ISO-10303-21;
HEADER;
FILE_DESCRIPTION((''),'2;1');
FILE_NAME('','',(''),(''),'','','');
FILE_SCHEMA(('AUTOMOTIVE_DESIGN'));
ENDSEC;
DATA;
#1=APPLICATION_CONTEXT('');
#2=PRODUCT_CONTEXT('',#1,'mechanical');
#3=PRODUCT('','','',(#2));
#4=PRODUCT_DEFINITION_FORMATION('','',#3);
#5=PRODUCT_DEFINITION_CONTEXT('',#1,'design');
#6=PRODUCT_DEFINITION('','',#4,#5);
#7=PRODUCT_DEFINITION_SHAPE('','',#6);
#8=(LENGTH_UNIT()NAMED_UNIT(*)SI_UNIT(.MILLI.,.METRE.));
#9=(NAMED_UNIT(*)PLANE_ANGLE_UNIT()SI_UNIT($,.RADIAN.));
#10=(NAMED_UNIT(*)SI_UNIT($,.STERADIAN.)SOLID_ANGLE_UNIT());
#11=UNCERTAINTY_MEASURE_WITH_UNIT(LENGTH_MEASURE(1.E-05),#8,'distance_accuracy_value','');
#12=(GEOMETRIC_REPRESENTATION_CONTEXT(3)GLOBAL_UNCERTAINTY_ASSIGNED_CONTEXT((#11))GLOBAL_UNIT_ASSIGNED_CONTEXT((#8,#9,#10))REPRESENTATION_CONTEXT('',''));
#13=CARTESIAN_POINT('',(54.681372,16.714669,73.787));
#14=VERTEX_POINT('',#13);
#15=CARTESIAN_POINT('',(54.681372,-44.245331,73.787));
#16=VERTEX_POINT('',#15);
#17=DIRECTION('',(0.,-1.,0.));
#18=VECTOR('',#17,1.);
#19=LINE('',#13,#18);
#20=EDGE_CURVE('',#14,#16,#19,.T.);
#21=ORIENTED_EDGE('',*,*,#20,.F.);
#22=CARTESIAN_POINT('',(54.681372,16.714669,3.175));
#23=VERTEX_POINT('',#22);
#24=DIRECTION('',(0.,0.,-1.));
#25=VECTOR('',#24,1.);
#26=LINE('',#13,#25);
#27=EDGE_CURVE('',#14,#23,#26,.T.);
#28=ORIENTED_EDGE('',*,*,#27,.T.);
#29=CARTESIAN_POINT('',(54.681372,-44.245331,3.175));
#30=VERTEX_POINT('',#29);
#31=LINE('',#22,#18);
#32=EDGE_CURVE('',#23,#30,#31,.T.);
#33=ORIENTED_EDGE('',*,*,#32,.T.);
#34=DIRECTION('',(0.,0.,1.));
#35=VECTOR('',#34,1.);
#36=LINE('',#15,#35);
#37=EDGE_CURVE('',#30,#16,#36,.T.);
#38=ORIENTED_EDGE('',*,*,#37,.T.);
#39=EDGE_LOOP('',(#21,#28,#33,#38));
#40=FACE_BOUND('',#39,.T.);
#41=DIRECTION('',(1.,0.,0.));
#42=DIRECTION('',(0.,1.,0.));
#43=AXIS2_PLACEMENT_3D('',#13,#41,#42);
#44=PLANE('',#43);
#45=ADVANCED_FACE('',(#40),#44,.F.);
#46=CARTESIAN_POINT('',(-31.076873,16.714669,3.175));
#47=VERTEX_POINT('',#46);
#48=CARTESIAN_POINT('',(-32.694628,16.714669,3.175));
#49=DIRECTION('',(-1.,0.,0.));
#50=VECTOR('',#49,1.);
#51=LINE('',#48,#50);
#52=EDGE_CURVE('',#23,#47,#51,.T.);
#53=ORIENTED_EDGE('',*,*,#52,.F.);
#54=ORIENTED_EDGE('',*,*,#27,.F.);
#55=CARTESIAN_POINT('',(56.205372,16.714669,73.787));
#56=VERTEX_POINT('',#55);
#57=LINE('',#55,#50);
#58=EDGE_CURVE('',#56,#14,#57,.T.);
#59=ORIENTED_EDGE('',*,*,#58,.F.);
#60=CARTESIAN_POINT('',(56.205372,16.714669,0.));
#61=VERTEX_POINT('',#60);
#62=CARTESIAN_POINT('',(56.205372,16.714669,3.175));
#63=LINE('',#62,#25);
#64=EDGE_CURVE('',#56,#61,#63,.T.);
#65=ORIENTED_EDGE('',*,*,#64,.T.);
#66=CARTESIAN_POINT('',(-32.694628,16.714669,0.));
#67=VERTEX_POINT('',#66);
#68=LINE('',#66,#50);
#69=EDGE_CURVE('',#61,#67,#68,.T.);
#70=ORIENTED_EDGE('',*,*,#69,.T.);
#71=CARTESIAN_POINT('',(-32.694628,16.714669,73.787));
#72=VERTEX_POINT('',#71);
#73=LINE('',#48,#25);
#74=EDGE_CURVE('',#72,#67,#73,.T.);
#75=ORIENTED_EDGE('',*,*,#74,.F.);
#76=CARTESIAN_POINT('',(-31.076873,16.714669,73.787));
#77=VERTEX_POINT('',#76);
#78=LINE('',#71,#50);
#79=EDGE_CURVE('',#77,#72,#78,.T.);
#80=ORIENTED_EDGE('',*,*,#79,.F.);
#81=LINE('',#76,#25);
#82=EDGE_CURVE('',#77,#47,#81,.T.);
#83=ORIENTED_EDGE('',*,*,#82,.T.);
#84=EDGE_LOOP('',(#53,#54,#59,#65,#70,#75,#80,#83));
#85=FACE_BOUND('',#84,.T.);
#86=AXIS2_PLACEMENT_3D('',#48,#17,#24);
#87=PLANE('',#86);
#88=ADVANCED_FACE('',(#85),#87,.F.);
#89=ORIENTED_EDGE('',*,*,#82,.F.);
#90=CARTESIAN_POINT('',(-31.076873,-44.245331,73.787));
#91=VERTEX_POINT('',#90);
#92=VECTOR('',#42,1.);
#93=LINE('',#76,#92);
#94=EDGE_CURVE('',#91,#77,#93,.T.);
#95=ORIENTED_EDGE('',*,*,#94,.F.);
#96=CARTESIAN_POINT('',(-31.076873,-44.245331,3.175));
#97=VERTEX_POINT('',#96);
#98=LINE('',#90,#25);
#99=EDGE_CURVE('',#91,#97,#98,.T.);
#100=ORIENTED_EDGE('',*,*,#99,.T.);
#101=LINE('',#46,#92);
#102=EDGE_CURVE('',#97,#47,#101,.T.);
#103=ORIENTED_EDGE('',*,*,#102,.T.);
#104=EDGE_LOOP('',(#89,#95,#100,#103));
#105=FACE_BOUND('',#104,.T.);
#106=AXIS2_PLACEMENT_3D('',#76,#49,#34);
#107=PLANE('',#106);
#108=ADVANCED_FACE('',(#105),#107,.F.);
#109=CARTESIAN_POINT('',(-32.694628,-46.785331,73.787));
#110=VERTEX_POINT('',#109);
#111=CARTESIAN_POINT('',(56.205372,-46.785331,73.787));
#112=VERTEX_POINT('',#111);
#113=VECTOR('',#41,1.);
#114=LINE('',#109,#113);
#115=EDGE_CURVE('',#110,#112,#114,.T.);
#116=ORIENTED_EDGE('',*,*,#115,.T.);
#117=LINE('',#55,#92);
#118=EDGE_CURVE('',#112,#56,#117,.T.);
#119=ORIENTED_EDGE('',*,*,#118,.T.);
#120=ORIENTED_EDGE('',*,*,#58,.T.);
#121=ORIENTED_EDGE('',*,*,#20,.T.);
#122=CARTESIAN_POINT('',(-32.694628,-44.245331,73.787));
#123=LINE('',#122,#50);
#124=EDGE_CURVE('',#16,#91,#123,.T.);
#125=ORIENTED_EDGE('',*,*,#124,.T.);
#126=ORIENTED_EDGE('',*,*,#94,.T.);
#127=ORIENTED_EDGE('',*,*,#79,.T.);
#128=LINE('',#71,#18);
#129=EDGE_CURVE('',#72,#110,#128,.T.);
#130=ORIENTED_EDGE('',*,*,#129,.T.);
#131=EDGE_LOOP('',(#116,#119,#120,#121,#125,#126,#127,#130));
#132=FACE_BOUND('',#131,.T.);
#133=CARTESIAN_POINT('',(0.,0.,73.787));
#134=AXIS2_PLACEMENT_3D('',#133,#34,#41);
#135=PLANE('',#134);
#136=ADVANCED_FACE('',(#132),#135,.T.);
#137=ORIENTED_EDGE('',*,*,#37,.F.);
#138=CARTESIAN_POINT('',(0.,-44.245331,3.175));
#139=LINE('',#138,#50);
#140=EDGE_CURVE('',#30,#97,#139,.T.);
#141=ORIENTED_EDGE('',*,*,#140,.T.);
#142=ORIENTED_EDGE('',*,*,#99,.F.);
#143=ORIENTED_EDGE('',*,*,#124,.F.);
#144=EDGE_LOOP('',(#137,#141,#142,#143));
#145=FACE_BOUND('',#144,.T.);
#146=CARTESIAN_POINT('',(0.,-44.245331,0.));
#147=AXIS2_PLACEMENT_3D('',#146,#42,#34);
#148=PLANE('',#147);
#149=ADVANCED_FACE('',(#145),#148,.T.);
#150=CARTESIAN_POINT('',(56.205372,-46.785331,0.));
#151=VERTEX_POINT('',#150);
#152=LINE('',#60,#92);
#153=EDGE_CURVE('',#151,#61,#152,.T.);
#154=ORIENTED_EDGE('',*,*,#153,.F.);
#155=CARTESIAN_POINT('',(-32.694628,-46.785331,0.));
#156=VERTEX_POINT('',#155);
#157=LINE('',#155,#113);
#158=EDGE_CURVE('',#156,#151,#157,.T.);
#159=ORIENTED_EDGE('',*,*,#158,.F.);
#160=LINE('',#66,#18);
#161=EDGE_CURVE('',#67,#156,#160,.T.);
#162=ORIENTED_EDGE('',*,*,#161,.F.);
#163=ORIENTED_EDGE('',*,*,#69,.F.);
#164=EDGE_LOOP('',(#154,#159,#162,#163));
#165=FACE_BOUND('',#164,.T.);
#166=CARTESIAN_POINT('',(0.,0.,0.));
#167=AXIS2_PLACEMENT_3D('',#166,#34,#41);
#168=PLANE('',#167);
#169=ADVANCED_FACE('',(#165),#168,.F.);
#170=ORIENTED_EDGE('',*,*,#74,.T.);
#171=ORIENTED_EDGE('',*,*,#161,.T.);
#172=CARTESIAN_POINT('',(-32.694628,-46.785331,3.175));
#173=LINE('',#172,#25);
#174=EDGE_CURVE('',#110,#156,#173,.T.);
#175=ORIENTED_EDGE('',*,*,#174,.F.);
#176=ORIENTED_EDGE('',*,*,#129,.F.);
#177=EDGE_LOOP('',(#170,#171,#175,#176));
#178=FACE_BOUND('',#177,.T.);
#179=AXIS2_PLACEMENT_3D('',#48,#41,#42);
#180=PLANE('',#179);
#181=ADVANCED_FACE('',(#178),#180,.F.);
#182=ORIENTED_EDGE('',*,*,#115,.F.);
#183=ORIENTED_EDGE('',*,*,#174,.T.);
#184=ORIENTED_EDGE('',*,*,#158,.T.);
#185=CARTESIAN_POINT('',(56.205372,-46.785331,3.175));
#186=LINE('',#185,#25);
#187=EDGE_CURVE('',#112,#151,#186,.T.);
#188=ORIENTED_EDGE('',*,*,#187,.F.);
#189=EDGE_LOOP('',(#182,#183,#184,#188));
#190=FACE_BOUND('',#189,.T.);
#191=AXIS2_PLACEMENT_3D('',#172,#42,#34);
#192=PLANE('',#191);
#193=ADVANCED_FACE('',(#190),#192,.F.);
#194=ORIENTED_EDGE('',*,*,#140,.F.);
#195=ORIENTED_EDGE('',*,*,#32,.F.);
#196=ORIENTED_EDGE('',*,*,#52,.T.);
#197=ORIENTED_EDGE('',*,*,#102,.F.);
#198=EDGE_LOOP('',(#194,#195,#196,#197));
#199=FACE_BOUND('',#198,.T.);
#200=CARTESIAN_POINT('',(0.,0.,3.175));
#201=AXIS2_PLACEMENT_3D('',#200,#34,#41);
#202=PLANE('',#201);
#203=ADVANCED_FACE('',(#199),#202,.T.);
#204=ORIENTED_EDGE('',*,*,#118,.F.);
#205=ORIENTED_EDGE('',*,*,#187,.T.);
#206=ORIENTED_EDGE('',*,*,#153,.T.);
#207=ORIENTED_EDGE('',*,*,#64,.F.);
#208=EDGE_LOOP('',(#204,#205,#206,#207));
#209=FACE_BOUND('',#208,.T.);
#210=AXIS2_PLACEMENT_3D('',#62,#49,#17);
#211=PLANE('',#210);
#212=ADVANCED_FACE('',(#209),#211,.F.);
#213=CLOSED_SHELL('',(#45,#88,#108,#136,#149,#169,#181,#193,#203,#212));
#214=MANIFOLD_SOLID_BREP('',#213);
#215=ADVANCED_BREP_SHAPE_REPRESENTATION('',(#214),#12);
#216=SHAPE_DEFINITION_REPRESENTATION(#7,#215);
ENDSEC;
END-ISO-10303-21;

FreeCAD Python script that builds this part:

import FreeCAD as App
import Part
import Sketcher
Q = App.Units.Quantity

doc = App.newDocument("Part")
body = doc.addObject("PartDesign::Body", "Body")

# Sketch on XY plane
sketch1 = doc.addObject("Sketcher::SketchObject", "Sketch")
body.addObject(sketch1)
sketch1.AttachmentSupport = (doc.XY_Plane, [""])
sketch1.MapMode = "FlatFace"
sketch1.addGeometry([
    Part.LineSegment(App.Vector(-32.694628, 16.714669, 0), App.Vector(-32.694628, -46.785331, 0)),
    Part.LineSegment(App.Vector(-32.694628, -46.785331, 0), App.Vector(56.205372, -46.785331, 0)),
    Part.LineSegment(App.Vector(56.205372, -46.785331, 0), App.Vector(56.205372, 16.714669, 0)),
    Part.LineSegment(App.Vector(56.205372, 16.714669, 0), App.Vector(-32.694628, 16.714669, 0)),
], False)
sketch1.addConstraint([
    Sketcher.Constraint("Coincident", 0, 2, 1, 1),
    Sketcher.Constraint("Coincident", 1, 2, 2, 1),
    Sketcher.Constraint("Coincident", 2, 2, 3, 1),
    Sketcher.Constraint("Coincident", 3, 2, 0, 1),
    Sketcher.Constraint("Vertical", 0),
    Sketcher.Constraint("Horizontal", 1),
    Sketcher.Constraint("Vertical", 2),
    Sketcher.Constraint("Horizontal", 3),
    Sketcher.Constraint("DistanceX", 1, 1, 1, 2, Q("3.5 in")),
    Sketcher.Constraint("DistanceY", 0, 2, 0, 1, Q("2.5 in")),
    Sketcher.Constraint("DistanceX", 0, 2, -1, 1, 32.694628),
    Sketcher.Constraint("DistanceY", 0, 2, -1, 1, 46.785331),
])
pad1 = doc.addObject("PartDesign::Pad", "Pad")
body.addObject(pad1)
pad1.Profile = sketch1
pad1.Length = Q("0.125 in")

# Sketch on XY plane
sketch2 = doc.addObject("Sketcher::SketchObject", "Sketch001")
body.addObject(sketch2)
sketch2.AttachmentSupport = (doc.XY_Plane, [""])
sketch2.MapMode = "FlatFace"
sketch2.AttachmentOffset = App.Placement(App.Vector(0, 0, 0.125 * 25.4), App.Rotation())
sketch2.addGeometry([
    Part.LineSegment(App.Vector(-32.694628, 16.714669, 0), App.Vector(-32.694628, -46.785331, 0)),
    Part.LineSegment(App.Vector(-32.694628, -46.785331, 0), App.Vector(-31.076873, -46.785331, 0)),
    Part.LineSegment(App.Vector(-31.076873, -46.785331, 0), App.Vector(-31.076873, 16.714669, 0)),
    Part.LineSegment(App.Vector(-31.076873, 16.714669, 0), App.Vector(-32.694628, 16.714669, 0)),
], False)
sketch2.addConstraint([
    Sketcher.Constraint("Coincident", 0, 2, 1, 1),
    Sketcher.Constraint("Coincident", 1, 2, 2, 1),
    Sketcher.Constraint("Coincident", 2, 2, 3, 1),
    Sketcher.Constraint("Coincident", 3, 2, 0, 1),
    Sketcher.Constraint("Vertical", 0),
    Sketcher.Constraint("Horizontal", 1),
    Sketcher.Constraint("Vertical", 2),
    Sketcher.Constraint("Horizontal", 3),
    Sketcher.Constraint("DistanceY", 0, 2, 0, 1, Q("2.5 in")),
    Sketcher.Constraint("DistanceX", 1, 1, 1, 2, 1.617755),
    Sketcher.Constraint("DistanceX", 0, 2, -1, 1, 32.694628),
    Sketcher.Constraint("DistanceY", 0, 2, -1, 1, 46.785331),
])
pad2 = doc.addObject("PartDesign::Pad", "Pad001")
body.addObject(pad2)
pad2.Profile = sketch2
pad2.Length = Q("2.78 in")

# Sketch on XY plane
sketch3 = doc.addObject("Sketcher::SketchObject", "Sketch002")
body.addObject(sketch3)
sketch3.AttachmentSupport = (doc.XY_Plane, [""])
sketch3.MapMode = "FlatFace"
sketch3.AttachmentOffset = App.Placement(App.Vector(0, 0, 0.125 * 25.4), App.Rotation())
sketch3.addGeometry([
    Part.LineSegment(App.Vector(54.681372, 16.714669, 0), App.Vector(54.681372, -46.785331, 0)),
    Part.LineSegment(App.Vector(54.681372, -46.785331, 0), App.Vector(56.205372, -46.785331, 0)),
    Part.LineSegment(App.Vector(56.205372, -46.785331, 0), App.Vector(56.205372, 16.714669, 0)),
    Part.LineSegment(App.Vector(56.205372, 16.714669, 0), App.Vector(54.681372, 16.714669, 0)),
], False)
sketch3.addConstraint([
    Sketcher.Constraint("Coincident", 0, 2, 1, 1),
    Sketcher.Constraint("Coincident", 1, 2, 2, 1),
    Sketcher.Constraint("Coincident", 2, 2, 3, 1),
    Sketcher.Constraint("Coincident", 3, 2, 0, 1),
    Sketcher.Constraint("Vertical", 0),
    Sketcher.Constraint("Horizontal", 1),
    Sketcher.Constraint("Vertical", 2),
    Sketcher.Constraint("Horizontal", 3),
    Sketcher.Constraint("DistanceY", 0, 2, 0, 1, Q("2.5 in")),
    Sketcher.Constraint("DistanceX", 1, 1, 1, 2, Q("0.06 in")),
    Sketcher.Constraint("DistanceX", -1, 1, 0, 2, 54.681372),
    Sketcher.Constraint("DistanceY", 0, 2, -1, 1, 46.785331),
])
pad3 = doc.addObject("PartDesign::Pad", "Pad002")
body.addObject(pad3)
pad3.Profile = sketch3
pad3.Length = Q("2.78 in")

# Sketch on XZ plane
sketch4 = doc.addObject("Sketcher::SketchObject", "Sketch003")
body.addObject(sketch4)
sketch4.AttachmentSupport = (doc.XZ_Plane, [""])
sketch4.MapMode = "FlatFace"
sketch4.AttachmentOffset = App.Placement(App.Vector(0, 0, 46.785331), App.Rotation())
sketch4.addGeometry([
    Part.LineSegment(App.Vector(-32.694628, 73.787, 0), App.Vector(-32.694628, 0, 0)),
    Part.LineSegment(App.Vector(-32.694628, 0, 0), App.Vector(56.205372, 0, 0)),
    Part.LineSegment(App.Vector(56.205372, 0, 0), App.Vector(56.205372, 73.787, 0)),
    Part.LineSegment(App.Vector(56.205372, 73.787, 0), App.Vector(-32.694628, 73.787, 0)),
], False)
sketch4.addConstraint([
    Sketcher.Constraint("Coincident", 0, 2, 1, 1),
    Sketcher.Constraint("Coincident", 1, 2, 2, 1),
    Sketcher.Constraint("Coincident", 2, 2, 3, 1),
    Sketcher.Constraint("Coincident", 3, 2, 0, 1),
    Sketcher.Constraint("Vertical", 0),
    Sketcher.Constraint("Horizontal", 1),
    Sketcher.Constraint("Vertical", 2),
    Sketcher.Constraint("Horizontal", 3),
    Sketcher.Constraint("PointOnObject", 0, 2, -1),
    Sketcher.Constraint("DistanceX", 1, 1, 1, 2, Q("3.5 in")),
    Sketcher.Constraint("DistanceY", 0, 2, 0, 1, Q("2.905 in")),
    Sketcher.Constraint("DistanceX", 0, 2, -1, 1, 32.694628),
])
pad4 = doc.addObject("PartDesign::Pad", "Pad003")
body.addObject(pad4)
pad4.Profile = sketch4
pad4.Length = Q("0.1 in")
pad4.Reversed = True

doc.recompute()
